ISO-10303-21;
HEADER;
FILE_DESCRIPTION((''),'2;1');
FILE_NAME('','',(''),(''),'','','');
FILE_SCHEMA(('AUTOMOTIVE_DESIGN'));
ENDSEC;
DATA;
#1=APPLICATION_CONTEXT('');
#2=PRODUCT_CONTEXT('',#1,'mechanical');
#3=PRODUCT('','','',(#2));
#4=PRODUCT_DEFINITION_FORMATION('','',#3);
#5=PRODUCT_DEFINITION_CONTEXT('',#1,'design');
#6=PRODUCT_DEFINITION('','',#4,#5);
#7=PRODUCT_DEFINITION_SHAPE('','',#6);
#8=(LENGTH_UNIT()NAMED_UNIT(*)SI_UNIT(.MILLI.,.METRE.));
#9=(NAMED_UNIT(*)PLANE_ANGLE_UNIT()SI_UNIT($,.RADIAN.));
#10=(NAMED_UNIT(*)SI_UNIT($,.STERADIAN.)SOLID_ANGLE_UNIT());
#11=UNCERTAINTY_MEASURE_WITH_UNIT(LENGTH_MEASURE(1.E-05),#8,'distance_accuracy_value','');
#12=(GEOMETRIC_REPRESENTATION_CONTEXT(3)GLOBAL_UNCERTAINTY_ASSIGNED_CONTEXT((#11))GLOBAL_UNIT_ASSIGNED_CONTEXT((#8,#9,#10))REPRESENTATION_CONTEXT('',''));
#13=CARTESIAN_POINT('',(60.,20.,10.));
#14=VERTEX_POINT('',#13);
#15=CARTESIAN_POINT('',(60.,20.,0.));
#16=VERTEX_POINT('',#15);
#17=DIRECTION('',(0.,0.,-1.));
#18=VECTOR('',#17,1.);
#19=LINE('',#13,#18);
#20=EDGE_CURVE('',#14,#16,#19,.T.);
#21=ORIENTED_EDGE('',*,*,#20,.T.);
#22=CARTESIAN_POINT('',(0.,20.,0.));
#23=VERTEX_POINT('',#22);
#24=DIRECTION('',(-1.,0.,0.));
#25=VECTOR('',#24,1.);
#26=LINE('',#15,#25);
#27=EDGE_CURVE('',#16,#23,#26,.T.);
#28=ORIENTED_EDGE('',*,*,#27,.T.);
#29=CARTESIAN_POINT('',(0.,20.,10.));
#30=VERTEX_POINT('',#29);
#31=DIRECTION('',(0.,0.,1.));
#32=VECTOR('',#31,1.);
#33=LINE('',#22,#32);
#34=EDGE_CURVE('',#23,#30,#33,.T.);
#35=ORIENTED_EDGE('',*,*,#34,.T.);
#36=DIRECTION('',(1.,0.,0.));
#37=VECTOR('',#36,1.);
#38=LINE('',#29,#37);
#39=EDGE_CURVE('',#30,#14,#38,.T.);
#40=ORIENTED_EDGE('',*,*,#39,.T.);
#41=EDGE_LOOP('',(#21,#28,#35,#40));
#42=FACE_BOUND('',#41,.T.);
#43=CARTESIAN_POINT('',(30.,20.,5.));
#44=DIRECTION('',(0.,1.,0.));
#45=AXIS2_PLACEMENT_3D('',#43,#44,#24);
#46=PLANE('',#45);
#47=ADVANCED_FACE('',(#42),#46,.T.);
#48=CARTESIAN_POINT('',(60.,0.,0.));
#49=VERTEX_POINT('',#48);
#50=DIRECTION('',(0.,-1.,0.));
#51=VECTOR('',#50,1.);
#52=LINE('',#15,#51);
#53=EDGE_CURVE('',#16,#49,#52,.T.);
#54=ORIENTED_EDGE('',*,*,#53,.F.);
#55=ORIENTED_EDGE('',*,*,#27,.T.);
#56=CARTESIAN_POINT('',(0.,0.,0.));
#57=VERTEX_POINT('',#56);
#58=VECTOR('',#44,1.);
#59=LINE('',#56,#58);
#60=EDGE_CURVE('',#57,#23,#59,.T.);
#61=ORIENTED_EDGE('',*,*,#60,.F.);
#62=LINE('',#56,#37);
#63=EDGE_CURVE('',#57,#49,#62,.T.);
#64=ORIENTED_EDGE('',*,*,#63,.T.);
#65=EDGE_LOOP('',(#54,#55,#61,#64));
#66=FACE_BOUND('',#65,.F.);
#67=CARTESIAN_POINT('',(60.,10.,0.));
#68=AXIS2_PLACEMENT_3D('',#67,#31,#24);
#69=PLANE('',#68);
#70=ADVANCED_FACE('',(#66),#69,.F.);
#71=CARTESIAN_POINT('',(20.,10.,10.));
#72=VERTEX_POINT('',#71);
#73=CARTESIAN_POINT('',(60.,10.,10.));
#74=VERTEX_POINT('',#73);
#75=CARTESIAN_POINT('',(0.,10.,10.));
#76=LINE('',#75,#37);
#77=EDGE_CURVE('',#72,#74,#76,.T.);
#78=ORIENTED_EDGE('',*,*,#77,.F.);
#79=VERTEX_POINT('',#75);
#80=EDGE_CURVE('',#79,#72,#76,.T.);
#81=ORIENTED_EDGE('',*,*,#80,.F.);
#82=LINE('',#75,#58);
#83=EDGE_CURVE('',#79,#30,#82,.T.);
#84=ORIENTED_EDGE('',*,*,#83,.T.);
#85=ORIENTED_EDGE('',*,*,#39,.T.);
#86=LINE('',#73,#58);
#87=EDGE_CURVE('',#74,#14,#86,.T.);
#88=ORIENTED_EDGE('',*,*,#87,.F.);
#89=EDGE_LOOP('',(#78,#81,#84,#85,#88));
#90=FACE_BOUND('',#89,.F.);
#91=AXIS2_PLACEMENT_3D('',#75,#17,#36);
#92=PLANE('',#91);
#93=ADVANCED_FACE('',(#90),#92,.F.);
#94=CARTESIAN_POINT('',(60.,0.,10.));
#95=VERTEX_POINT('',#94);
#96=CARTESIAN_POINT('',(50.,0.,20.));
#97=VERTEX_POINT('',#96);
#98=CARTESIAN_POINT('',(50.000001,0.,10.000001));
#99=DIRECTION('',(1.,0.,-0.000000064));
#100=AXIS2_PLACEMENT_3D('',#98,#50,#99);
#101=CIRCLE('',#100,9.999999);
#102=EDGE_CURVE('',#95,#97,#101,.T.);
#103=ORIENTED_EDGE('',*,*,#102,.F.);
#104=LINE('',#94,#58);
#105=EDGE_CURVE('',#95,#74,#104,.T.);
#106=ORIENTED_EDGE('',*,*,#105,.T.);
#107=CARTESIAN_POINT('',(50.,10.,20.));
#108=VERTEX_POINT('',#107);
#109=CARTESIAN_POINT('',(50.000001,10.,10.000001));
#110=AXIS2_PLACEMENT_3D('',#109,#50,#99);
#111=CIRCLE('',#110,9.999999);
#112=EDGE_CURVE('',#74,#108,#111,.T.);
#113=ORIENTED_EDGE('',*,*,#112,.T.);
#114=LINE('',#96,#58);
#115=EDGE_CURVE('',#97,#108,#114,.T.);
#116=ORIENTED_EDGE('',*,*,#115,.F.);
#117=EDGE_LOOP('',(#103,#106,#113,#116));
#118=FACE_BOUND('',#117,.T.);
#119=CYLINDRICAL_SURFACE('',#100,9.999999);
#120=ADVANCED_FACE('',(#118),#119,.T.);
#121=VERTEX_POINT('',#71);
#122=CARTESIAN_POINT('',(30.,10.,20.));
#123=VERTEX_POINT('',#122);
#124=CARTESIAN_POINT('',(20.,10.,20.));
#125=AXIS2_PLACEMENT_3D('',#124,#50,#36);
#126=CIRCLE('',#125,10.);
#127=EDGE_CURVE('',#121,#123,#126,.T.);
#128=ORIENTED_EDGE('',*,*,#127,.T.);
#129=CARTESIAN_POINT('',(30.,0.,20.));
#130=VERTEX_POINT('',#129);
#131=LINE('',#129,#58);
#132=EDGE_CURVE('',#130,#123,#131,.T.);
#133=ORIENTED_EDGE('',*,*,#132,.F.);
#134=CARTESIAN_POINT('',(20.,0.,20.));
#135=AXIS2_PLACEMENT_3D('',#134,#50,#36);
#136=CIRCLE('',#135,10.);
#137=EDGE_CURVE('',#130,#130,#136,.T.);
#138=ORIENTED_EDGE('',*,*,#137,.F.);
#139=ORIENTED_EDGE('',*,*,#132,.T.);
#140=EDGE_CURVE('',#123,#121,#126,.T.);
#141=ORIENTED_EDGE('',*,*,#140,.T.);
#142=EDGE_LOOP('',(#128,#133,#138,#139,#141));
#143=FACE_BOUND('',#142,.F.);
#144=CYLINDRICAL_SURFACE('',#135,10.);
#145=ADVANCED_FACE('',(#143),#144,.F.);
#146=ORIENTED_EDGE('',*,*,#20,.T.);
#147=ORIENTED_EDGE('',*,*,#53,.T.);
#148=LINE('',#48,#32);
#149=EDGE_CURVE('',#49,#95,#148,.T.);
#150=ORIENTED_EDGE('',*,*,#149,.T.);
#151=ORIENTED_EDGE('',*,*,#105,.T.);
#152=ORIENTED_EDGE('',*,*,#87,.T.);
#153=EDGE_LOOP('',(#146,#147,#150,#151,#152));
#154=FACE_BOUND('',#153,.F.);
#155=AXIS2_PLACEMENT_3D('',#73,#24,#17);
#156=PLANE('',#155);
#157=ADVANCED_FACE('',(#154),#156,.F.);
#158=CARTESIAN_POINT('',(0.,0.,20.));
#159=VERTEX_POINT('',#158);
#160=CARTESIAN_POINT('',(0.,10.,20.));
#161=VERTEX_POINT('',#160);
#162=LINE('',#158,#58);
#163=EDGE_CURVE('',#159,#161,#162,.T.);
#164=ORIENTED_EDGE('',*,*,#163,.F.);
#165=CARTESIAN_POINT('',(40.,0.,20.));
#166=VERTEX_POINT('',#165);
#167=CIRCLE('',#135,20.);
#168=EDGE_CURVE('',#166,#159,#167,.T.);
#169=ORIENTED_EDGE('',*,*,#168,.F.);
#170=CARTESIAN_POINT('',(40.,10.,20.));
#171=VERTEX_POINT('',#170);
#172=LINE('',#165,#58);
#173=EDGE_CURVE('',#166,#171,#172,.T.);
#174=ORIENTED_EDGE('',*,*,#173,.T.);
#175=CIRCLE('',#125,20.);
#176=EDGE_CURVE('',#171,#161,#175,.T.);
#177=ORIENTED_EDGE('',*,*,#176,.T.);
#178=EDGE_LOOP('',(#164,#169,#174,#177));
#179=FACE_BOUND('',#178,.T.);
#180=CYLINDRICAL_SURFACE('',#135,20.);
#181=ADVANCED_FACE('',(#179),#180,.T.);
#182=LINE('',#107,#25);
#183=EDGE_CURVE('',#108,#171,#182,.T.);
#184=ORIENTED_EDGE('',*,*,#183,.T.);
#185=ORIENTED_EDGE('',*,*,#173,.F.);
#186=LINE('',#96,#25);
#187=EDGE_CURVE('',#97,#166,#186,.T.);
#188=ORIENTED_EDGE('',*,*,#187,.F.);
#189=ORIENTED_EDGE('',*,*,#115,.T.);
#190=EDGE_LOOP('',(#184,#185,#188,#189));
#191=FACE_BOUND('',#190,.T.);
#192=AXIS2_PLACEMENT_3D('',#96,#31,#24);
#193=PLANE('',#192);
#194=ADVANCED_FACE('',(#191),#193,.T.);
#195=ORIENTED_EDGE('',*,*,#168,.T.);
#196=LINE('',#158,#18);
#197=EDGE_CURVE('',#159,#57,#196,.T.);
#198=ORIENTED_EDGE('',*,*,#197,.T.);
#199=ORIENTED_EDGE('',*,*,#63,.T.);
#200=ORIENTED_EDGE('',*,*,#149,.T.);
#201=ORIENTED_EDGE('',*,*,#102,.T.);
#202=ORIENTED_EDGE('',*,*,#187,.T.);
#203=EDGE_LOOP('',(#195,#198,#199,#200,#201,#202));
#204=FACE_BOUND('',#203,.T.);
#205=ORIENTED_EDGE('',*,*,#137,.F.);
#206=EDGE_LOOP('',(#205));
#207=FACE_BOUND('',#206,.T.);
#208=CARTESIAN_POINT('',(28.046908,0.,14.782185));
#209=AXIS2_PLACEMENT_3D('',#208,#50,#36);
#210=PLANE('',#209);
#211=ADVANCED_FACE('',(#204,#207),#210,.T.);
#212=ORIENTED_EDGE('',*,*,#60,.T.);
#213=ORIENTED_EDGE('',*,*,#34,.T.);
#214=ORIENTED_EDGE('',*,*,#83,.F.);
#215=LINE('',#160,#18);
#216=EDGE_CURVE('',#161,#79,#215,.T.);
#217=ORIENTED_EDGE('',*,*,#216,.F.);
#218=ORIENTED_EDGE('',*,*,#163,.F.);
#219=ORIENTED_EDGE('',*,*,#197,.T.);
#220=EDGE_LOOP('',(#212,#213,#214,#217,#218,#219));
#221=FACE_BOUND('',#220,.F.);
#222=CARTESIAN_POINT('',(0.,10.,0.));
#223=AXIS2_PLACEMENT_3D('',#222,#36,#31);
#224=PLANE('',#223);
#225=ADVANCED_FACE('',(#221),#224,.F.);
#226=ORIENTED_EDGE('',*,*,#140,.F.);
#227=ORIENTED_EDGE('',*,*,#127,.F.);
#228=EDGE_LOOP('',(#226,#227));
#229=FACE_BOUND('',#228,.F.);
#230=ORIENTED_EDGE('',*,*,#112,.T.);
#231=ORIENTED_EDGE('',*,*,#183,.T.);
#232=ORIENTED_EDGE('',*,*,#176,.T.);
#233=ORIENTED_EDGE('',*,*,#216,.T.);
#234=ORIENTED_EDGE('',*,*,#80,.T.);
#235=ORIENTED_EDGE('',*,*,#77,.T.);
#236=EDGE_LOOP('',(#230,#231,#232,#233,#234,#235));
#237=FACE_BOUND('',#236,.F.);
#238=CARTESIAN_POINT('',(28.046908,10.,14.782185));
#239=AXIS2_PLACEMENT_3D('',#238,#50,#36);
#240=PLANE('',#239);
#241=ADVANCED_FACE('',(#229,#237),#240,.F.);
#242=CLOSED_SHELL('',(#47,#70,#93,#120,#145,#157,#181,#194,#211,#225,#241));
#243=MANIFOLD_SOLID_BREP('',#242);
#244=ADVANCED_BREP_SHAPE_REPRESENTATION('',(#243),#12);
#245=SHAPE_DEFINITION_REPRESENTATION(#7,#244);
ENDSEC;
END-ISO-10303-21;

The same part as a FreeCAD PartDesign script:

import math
import FreeCAD as App
import Part
import Sketcher
from FreeCAD import Vector


def add_polygon(sketch, points):
    """Adds a closed chain of lines whose ends are joined by coincident constraints."""
    first, n = sketch.GeometryCount, len(points)
    for a, b in zip(points, points[1:] + points[:1]):
        sketch.addGeometry(Part.LineSegment(App.Vector(*a, 0), App.Vector(*b, 0)), False)
    for i in range(n):
        sketch.addConstraint(Sketcher.Constraint("Coincident", first + i, 2, first + (i + 1) % n, 1))

doc = App.newDocument("Part")
params = doc.addObject("Spreadsheet::Sheet", "Params")
for row, (alias, value) in enumerate([
    ("sketch1_diameter", "20 mm"),
    ("sketch1_radius", "20 mm"),
    ("sketch1_width", "60 mm"),
    ("pad1_length", "10 mm"),
    ("sketch2_width", "60 mm"),
    ("sketch2_height", "10 mm"),
    ("pad2_length", "10 mm"),
], start=1):
    params.set(f"A{row}", alias)
    params.set(f"B{row}", "=" + value)
    params.setAlias(f"B{row}", alias)

body = doc.addObject("PartDesign::Body", "Body")

# Sketch on XZ plane
sketch1 = doc.addObject("Sketcher::SketchObject", "Sketch")
body.addObject(sketch1)
sketch1.AttachmentSupport = (doc.XZ_Plane, [""])
sketch1.MapMode = "FlatFace"
sketch1.addGeometry(Part.LineSegment(Vector(0, 20, 0), Vector(0, 0, 0)), False)
sketch1.addGeometry(Part.LineSegment(Vector(0, 0, 0), Vector(60, 0, 0)), False)
sketch1.addGeometry(Part.LineSegment(Vector(60, 0, 0), Vector(60, 10, 0)), False)
sketch1.addGeometry(Part.ArcOfCircle(Part.Circle(Vector(50.000001, 10.000001, 0), Vector(0, 0, 1), 9.999999), math.radians(-0.000004), math.radians(90.000004)), False)
sketch1.addGeometry(Part.LineSegment(Vector(50, 20, 0), Vector(40, 20, 0)), False)
sketch1.addGeometry(Part.ArcOfCircle(Part.Circle(Vector(20, 20, 0), Vector(0, 0, 1), 20), math.radians(0), math.radians(180)), False)
sketch1.addGeometry(Part.Circle(Vector(20, 20, 0), Vector(0, 0, 1), 10), False)
sketch1.addConstraint(Sketcher.Constraint("Coincident", 0, 2, 1, 1))
sketch1.addConstraint(Sketcher.Constraint("Coincident", 1, 2, 2, 1))
sketch1.addConstraint(Sketcher.Constraint("Tangent", 2, 2, 3, 1))
sketch1.addConstraint(Sketcher.Constraint("Tangent", 3, 2, 4, 1))
sketch1.addConstraint(Sketcher.Constraint("Coincident", 4, 2, 5, 1))
sketch1.addConstraint(Sketcher.Constraint("Tangent", 5, 2, 0, 1))
sketch1.addConstraint(Sketcher.Constraint("Vertical", 0))
sketch1.addConstraint(Sketcher.Constraint("Horizontal", 1))
sketch1.addConstraint(Sketcher.Constraint("Vertical", 2))
sketch1.addConstraint(Sketcher.Constraint("Horizontal", 4))
sketch1.addConstraint(Sketcher.Constraint("Coincident", 0, 2, -1, 1))
sketch1.addConstraint(Sketcher.Constraint("Coincident", 6, 3, 5, 3))
sketch1.addConstraint(Sketcher.Constraint("Equal", 3, 6))
sketch1.addConstraint(Sketcher.Constraint("Horizontal", 6, 3, 3, 2))
sketch1.addConstraint(Sketcher.Constraint("Equal", 4, 2))
sketch1.addConstraint(Sketcher.Constraint("Diameter", 6, 20.0))
sketch1.addConstraint(Sketcher.Constraint("Radius", 5, 20.0))
sketch1.addConstraint(Sketcher.Constraint("DistanceX", 1, 1, 1, 2, 60.0))
sketch1.setExpression("Constraints[15]", "Params.sketch1_diameter")
sketch1.setExpression("Constraints[16]", "Params.sketch1_radius")
sketch1.setExpression("Constraints[17]", "Params.sketch1_width")
pad1 = doc.addObject("PartDesign::Pad", "Pad")
body.addObject(pad1)
pad1.Profile = sketch1
pad1.setExpression("Length", "Params.pad1_length")
pad1.Reversed = True

# Sketch on XZ plane
sketch2 = doc.addObject("Sketcher::SketchObject", "Sketch001")
body.addObject(sketch2)
sketch2.AttachmentSupport = (doc.XZ_Plane, [""])
sketch2.MapMode = "FlatFace"
sketch2.AttachmentOffset = App.Placement(Vector(0, 0, -10), App.Rotation())
add_polygon(sketch2, [(60, 0), (0, 0), (0, 10), (60, 10)])  # lines 0-3
sketch2.addConstraint(Sketcher.Constraint("Horizontal", 0))
sketch2.addConstraint(Sketcher.Constraint("Vertical", 1))
sketch2.addConstraint(Sketcher.Constraint("Horizontal", 2))
sketch2.addConstraint(Sketcher.Constraint("Vertical", 3))
sketch2.addConstraint(Sketcher.Constraint("Coincident", 0, 2, -1, 1))
sketch2.addConstraint(Sketcher.Constraint("DistanceX", 0, 2, 0, 1, 60.0))
sketch2.addConstraint(Sketcher.Constraint("DistanceY", 1, 1, 1, 2, 10.0))
sketch2.setExpression("Constraints[9]", "Params.sketch2_width")
sketch2.setExpression("Constraints[10]", "Params.sketch2_height")
pad2 = doc.addObject("PartDesign::Pad", "Pad001")
body.addObject(pad2)
pad2.Profile = sketch2
pad2.setExpression("Length", "Params.pad2_length")
pad2.Reversed = True

doc.recompute()
